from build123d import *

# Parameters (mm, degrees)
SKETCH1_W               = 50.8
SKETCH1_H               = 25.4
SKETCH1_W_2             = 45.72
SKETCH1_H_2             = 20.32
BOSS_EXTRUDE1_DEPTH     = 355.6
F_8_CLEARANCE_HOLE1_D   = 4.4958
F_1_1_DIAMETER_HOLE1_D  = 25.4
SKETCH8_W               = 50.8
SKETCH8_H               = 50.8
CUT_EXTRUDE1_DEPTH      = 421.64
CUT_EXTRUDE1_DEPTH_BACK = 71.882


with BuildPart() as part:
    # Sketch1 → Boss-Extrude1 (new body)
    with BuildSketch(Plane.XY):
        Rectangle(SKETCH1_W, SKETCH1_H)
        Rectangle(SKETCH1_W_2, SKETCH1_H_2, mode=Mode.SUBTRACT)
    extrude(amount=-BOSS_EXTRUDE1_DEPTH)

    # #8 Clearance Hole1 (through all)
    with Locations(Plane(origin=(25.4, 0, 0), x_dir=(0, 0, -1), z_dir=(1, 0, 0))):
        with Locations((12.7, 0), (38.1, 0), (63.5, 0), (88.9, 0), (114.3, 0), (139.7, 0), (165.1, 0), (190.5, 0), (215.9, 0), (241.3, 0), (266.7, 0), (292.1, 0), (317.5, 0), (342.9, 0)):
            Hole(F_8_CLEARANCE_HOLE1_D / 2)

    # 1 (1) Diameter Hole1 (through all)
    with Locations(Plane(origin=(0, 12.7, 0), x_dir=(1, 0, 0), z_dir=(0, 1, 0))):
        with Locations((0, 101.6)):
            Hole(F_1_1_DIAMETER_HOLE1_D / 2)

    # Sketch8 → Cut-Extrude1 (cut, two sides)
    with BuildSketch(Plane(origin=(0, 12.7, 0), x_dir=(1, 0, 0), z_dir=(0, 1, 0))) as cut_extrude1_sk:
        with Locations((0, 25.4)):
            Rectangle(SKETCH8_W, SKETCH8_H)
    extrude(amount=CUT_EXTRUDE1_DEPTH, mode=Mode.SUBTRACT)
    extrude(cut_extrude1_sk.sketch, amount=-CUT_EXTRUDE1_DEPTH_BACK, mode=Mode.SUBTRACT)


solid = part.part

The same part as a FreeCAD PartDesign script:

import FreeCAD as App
import Part
import Sketcher

V = App.Vector
Q = App.Units.Quantity


def add_polygon(sketch, points):
    """Adds a closed chain of lines whose ends are joined by coincident constraints."""
    first, n = sketch.GeometryCount, len(points)
    for a, b in zip(points, points[1:] + points[:1]):
        sketch.addGeometry(Part.LineSegment(App.Vector(*a, 0), App.Vector(*b, 0)), False)
    for i in range(n):
        sketch.addConstraint(Sketcher.Constraint("Coincident", first + i, 2, first + (i + 1) % n, 1))

doc = App.newDocument("Part")
body = doc.addObject("PartDesign::Body", "Body")

sketch1 = body.newObject("Sketcher::SketchObject", "Sketch")
sketch1.AttachmentSupport = (doc.getObject("XY_Plane"), [""])
sketch1.MapMode = "FlatFace"
add_polygon(sketch1, [(-25.4, 12.7), (-25.4, -12.7), (25.4, -12.7), (25.4, 12.7)])
add_polygon(sketch1, [(22.86, -10.16), (-22.86, -10.16), (-22.86, 10.16), (22.86, 10.16)])
sketch1.addConstraint(Sketcher.Constraint("Vertical", 0))
sketch1.addConstraint(Sketcher.Constraint("Horizontal", 1))
sketch1.addConstraint(Sketcher.Constraint("Vertical", 2))
sketch1.addConstraint(Sketcher.Constraint("Horizontal", 3))
sketch1.addConstraint(Sketcher.Constraint("Horizontal", 4))
sketch1.addConstraint(Sketcher.Constraint("Vertical", 5))
sketch1.addConstraint(Sketcher.Constraint("Horizontal", 6))
sketch1.addConstraint(Sketcher.Constraint("Vertical", 7))
sketch1.addConstraint(Sketcher.Constraint("Symmetric", 0, 2, 2, 2, -1, 1))
sketch1.addConstraint(Sketcher.Constraint("Symmetric", 4, 2, 6, 2, -1, 1))
sketch1.addConstraint(Sketcher.Constraint("DistanceX", 1, 1, 1, 2, Q("2 in")))
sketch1.addConstraint(Sketcher.Constraint("DistanceY", 0, 2, 0, 1, Q("1 in")))
sketch1.addConstraint(Sketcher.Constraint("DistanceX", 4, 2, 4, 1, Q("1.8 in")))
sketch1.addConstraint(Sketcher.Constraint("DistanceY", 5, 1, 5, 2, Q("0.8 in")))
pad1 = body.newObject("PartDesign::Pad", "Pad")
pad1.Profile = sketch1
pad1.Length = Q("14 in")
pad1.Reversed = True

sketch2 = body.newObject("Sketcher::SketchObject", "Sketch001")
sketch2.AttachmentSupport = (doc.getObject("YZ_Plane"), [""])
sketch2.MapMode = "FlatFace"
sketch2.AttachmentOffset = App.Placement(V(0, 0, 1 * 25.4), App.Rotation())
sketch2.addGeometry(Part.Circle(V(0, -12.7, 0), V(0, 0, 1), 2.2479), False)
sketch2.addGeometry(Part.Circle(V(0, -38.1, 0), V(0, 0, 1), 2.2479), False)
sketch2.addGeometry(Part.Circle(V(0, -63.5, 0), V(0, 0, 1), 2.2479), False)
sketch2.addGeometry(Part.Circle(V(0, -88.9, 0), V(0, 0, 1), 2.2479), False)
sketch2.addGeometry(Part.Circle(V(0, -114.3, 0), V(0, 0, 1), 2.2479), False)
sketch2.addGeometry(Part.Circle(V(0, -139.7, 0), V(0, 0, 1), 2.2479), False)
sketch2.addGeometry(Part.Circle(V(0, -165.1, 0), V(0, 0, 1), 2.2479), False)
sketch2.addGeometry(Part.Circle(V(0, -190.5, 0), V(0, 0, 1), 2.2479), False)
sketch2.addGeometry(Part.Circle(V(0, -215.9, 0), V(0, 0, 1), 2.2479), False)
sketch2.addGeometry(Part.Circle(V(0, -241.3, 0), V(0, 0, 1), 2.2479), False)
sketch2.addGeometry(Part.Circle(V(0, -266.7, 0), V(0, 0, 1), 2.2479), False)
sketch2.addGeometry(Part.Circle(V(0, -292.1, 0), V(0, 0, 1), 2.2479), False)
sketch2.addGeometry(Part.Circle(V(0, -317.5, 0), V(0, 0, 1), 2.2479), False)
sketch2.addGeometry(Part.Circle(V(0, -342.9, 0), V(0, 0, 1), 2.2479), False)
sketch2.addConstraint(Sketcher.Constraint("Equal", 0, 1))
sketch2.addConstraint(Sketcher.Constraint("Equal", 1, 2))
sketch2.addConstraint(Sketcher.Constraint("Equal", 2, 3))
sketch2.addConstraint(Sketcher.Constraint("Equal", 3, 4))
sketch2.addConstraint(Sketcher.Constraint("Equal", 4, 5))
sketch2.addConstraint(Sketcher.Constraint("Equal", 5, 6))
sketch2.addConstraint(Sketcher.Constraint("Equal", 6, 7))
sketch2.addConstraint(Sketcher.Constraint("Equal", 7, 8))
sketch2.addConstraint(Sketcher.Constraint("Equal", 8, 9))
sketch2.addConstraint(Sketcher.Constraint("Equal", 9, 10))
sketch2.addConstraint(Sketcher.Constraint("Equal", 10, 11))
sketch2.addConstraint(Sketcher.Constraint("Equal", 11, 12))
sketch2.addConstraint(Sketcher.Constraint("Equal", 12, 13))
sketch2.addConstraint(Sketcher.Constraint("PointOnObject", 0, 3, -2))
sketch2.addConstraint(Sketcher.Constraint("PointOnObject", 1, 3, -2))
sketch2.addConstraint(Sketcher.Constraint("PointOnObject", 2, 3, -2))
sketch2.addConstraint(Sketcher.Constraint("PointOnObject", 3, 3, -2))
sketch2.addConstraint(Sketcher.Constraint("PointOnObject", 4, 3, -2))
sketch2.addConstraint(Sketcher.Constraint("PointOnObject", 5, 3, -2))
sketch2.addConstraint(Sketcher.Constraint("PointOnObject", 6, 3, -2))
sketch2.addConstraint(Sketcher.Constraint("PointOnObject", 7, 3, -2))
sketch2.addConstraint(Sketcher.Constraint("PointOnObject", 8, 3, -2))
sketch2.addConstraint(Sketcher.Constraint("PointOnObject", 9, 3, -2))
sketch2.addConstraint(Sketcher.Constraint("PointOnObject", 10, 3, -2))
sketch2.addConstraint(Sketcher.Constraint("PointOnObject", 11, 3, -2))
sketch2.addConstraint(Sketcher.Constraint("PointOnObject", 12, 3, -2))
sketch2.addConstraint(Sketcher.Constraint("PointOnObject", 13, 3, -2))
sketch2.addConstraint(Sketcher.Constraint("Diameter", 0, Q("0.177 in")))
sketch2.addConstraint(Sketcher.Constraint("DistanceY", 1, 3, 0, 3, Q("1 in")))
sketch2.addConstraint(Sketcher.Constraint("DistanceY", 2, 3, 1, 3, Q("1 in")))
sketch2.addConstraint(Sketcher.Constraint("DistanceY", 3, 3, 2, 3, Q("1 in")))
sketch2.addConstraint(Sketcher.Constraint("DistanceY", 4, 3, 3, 3, Q("1 in")))
sketch2.addConstraint(Sketcher.Constraint("DistanceY", 5, 3, 4, 3, Q("1 in")))
sketch2.addConstraint(Sketcher.Constraint("DistanceY", 6, 3, 5, 3, Q("1 in")))
sketch2.addConstraint(Sketcher.Constraint("DistanceY", 7, 3, 6, 3, Q("1 in")))
sketch2.addConstraint(Sketcher.Constraint("DistanceY", 8, 3, 7, 3, Q("1 in")))
sketch2.addConstraint(Sketcher.Constraint("DistanceY", 9, 3, 8, 3, Q("1 in")))
sketch2.addConstraint(Sketcher.Constraint("DistanceY", 10, 3, 9, 3, Q("1 in")))
sketch2.addConstraint(Sketcher.Constraint("DistanceY", 11, 3, 10, 3, Q("1 in")))
sketch2.addConstraint(Sketcher.Constraint("DistanceY", 12, 3, 11, 3, Q("1 in")))
sketch2.addConstraint(Sketcher.Constraint("DistanceY", 13, 3, 12, 3, Q("1 in")))
sketch2.addConstraint(Sketcher.Constraint("DistanceY", 0, 3, -1, 1, Q("0.5 in")))
doc.recompute()
hole = body.newObject("PartDesign::Hole", "Hole")
hole.Profile = sketch2
hole.ThreadType = "None"
hole.Diameter = Q("0.177 in")
hole.DepthType = "ThroughAll"

sketch3 = body.newObject("Sketcher::SketchObject", "Sketch002")
sketch3.AttachmentSupport = (doc.getObject("XZ_Plane"), [""])
sketch3.MapMode = "FlatFace"
sketch3.AttachmentOffset = App.Placement(V(0, 0, -0.5 * 25.4), App.Rotation())
sketch3.addGeometry(Part.Circle(V(0, -101.6, 0), V(0, 0, 1), 12.7), False)
sketch3.addConstraint(Sketcher.Constraint("PointOnObject", 0, 3, -2))
sketch3.addConstraint(Sketcher.Constraint("Diameter", 0, Q("1 in")))
sketch3.addConstraint(Sketcher.Constraint("DistanceY", 0, 3, -1, 1, Q("4 in")))
doc.recompute()
hole2 = body.newObject("PartDesign::Hole", "Hole001")
hole2.Profile = sketch3
hole2.ThreadType = "None"
hole2.Diameter = Q("1 in")
hole2.DepthType = "ThroughAll"
hole2.Reversed = True

sketch4 = body.newObject("Sketcher::SketchObject", "Sketch003")
sketch4.AttachmentSupport = (doc.getObject("XZ_Plane"), [""])
sketch4.MapMode = "FlatFace"
sketch4.AttachmentOffset = App.Placement(V(0, 0, -0.5 * 25.4), App.Rotation())
add_polygon(sketch4, [(-25.4, -50.8), (-25.4, 0), (25.4, 0), (25.4, -50.8)])
sketch4.addConstraint(Sketcher.Constraint("Vertical", 0))
sketch4.addConstraint(Sketcher.Constraint("Horizontal", 1))
sketch4.addConstraint(Sketcher.Constraint("Vertical", 2))
sketch4.addConstraint(Sketcher.Constraint("Horizontal", 3))
sketch4.addConstraint(Sketcher.Constraint("Symmetric", 0, 2, 1, 2, -1, 1))
sketch4.addConstraint(Sketcher.Constraint("Equal", 3, 0))
sketch4.addConstraint(Sketcher.Constraint("DistanceX", 1, 1, 1, 2, Q("2 in")))
pocket1 = body.newObject("PartDesign::Pocket", "Pocket")
pocket1.Profile = sketch4
pocket1.Type = "ThroughAll"
pocket1.Midplane = True

doc.recompute()
